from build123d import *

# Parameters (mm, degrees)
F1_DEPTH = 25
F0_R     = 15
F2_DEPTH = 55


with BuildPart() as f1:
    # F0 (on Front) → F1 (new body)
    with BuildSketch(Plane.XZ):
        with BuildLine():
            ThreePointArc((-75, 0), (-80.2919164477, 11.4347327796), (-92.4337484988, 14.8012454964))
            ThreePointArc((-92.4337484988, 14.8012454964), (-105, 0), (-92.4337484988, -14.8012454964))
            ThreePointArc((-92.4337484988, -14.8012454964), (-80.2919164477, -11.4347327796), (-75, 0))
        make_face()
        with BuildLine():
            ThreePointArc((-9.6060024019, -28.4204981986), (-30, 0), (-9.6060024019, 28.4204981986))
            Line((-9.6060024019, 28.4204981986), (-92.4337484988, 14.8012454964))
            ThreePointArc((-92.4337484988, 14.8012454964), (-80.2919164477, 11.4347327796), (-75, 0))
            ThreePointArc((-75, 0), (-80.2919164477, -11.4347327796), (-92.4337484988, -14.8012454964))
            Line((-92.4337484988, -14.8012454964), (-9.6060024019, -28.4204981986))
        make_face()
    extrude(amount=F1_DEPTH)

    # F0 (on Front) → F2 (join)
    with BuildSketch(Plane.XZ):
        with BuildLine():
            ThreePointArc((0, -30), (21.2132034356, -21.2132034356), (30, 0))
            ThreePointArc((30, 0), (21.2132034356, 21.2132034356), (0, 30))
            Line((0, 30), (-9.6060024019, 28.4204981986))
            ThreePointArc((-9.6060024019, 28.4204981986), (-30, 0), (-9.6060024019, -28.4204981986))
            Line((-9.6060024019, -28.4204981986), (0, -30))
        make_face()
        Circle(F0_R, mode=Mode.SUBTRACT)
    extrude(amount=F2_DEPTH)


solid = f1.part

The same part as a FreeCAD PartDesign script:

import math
import FreeCAD as App
import Part
import Sketcher
from FreeCAD import Vector

doc = App.newDocument("Part")
params = doc.addObject("Spreadsheet::Sheet", "Params")
for row, (alias, value) in enumerate([
    ("sketch1_radius", "15 mm"),
    ("sketch1_radius2", "30 mm"),
    ("pad1_length", "25 mm"),
    ("sketch2_diameter", "30 mm"),
    ("sketch2_radius", "30 mm"),
    ("pad2_length", "55 mm"),
], start=1):
    params.set(f"A{row}", alias)
    params.set(f"B{row}", "=" + value)
    params.setAlias(f"B{row}", alias)

body = doc.addObject("PartDesign::Body", "Body")

# Sketch on XZ plane
sketch1 = body.newObject("Sketcher::SketchObject", "Sketch")
sketch1.AttachmentSupport = (doc.getObject("XZ_Plane"), [""])
sketch1.MapMode = "FlatFace"
sketch1.addGeometry([
    Part.ArcOfCircle(Part.Circle(Vector(-90, 0, 0), Vector(0, 0, 1), 15), math.radians(99), math.radians(261)),
    Part.LineSegment(Vector(-92, -15, 0), Vector(-10, -28, 0)),
    Part.ArcOfCircle(Part.Circle(Vector(0, 0, 0), Vector(0, 0, 1), 30), math.radians(109), math.radians(251)),
    Part.LineSegment(Vector(-10, 28, 0), Vector(-92, 15, 0)),
], False)
sketch1.addConstraint([
    Sketcher.Constraint("Tangent", 0, 2, 1, 1),
    Sketcher.Constraint("Coincident", 1, 2, 2, 2),
    Sketcher.Constraint("Coincident", 2, 1, 3, 1),
    Sketcher.Constraint("Tangent", 3, 2, 0, 1),
    Sketcher.Constraint("Coincident", 2, 3, -1, 1),
    Sketcher.Constraint("Symmetric", 0, 2, 3, 2, -1),
    Sketcher.Constraint("Radius", 0, 15.0),
    Sketcher.Constraint("Radius", 2, 30.0),
    Sketcher.Constraint("DistanceX", 0, 3, -1, 1, 90.0),
    Sketcher.Constraint("DistanceY", 1, 2, -1, 1, 28.420498),
])
sketch1.setExpression("Constraints[6]", "Params.sketch1_radius")
sketch1.setExpression("Constraints[7]", "Params.sketch1_radius2")
pad1 = body.newObject("PartDesign::Pad", "Pad")
pad1.Profile = sketch1
pad1.setExpression("Length", "Params.pad1_length")

# Sketch on XZ plane
sketch2 = body.newObject("Sketcher::SketchObject", "Sketch001")
sketch2.AttachmentSupport = (doc.getObject("XZ_Plane"), [""])
sketch2.MapMode = "FlatFace"
sketch2.addGeometry([
    Part.ArcOfCircle(Part.Circle(Vector(0, 0, 0), Vector(0, 0, 1), 30), math.radians(-90), math.radians(90)),  # 0
    Part.LineSegment(Vector(0, 30, 0), Vector(-10, 28, 0)),  # 1
    Part.ArcOfCircle(Part.Circle(Vector(0, 0, 0), Vector(0, 0, 1), 30), math.radians(109), math.radians(251)),  # 2
    Part.LineSegment(Vector(-10, -28, 0), Vector(0, -30, 0)),  # 3
    Part.Circle(Vector(0, 0, 0), Vector(0, 0, 1), 15),  # 4
], False)
sketch2.addConstraint([
    Sketcher.Constraint("Coincident", 0, 2, 1, 1),
    Sketcher.Constraint("Coincident", 1, 2, 2, 1),
    Sketcher.Constraint("Coincident", 2, 2, 3, 1),
    Sketcher.Constraint("Coincident", 3, 2, 0, 1),
    Sketcher.Constraint("Coincident", 0, 3, -1, 1),
    Sketcher.Constraint("Coincident", 2, 3, -1, 1),
    Sketcher.Constraint("Coincident", 4, 3, -1, 1),
    Sketcher.Constraint("Equal", 0, 2),
    Sketcher.Constraint("PointOnObject", 0, 2, -2),
    Sketcher.Constraint("PointOnObject", 3, 2, -2),
    Sketcher.Constraint("Vertical", 1, 2, 2, 2),
    Sketcher.Constraint("Diameter", 4, 30.0),
    Sketcher.Constraint("Radius", 0, 30.0),
    Sketcher.Constraint("DistanceY", -1, 1, 1, 2, 28.420498),
])
sketch2.setExpression("Constraints[11]", "Params.sketch2_diameter")
sketch2.setExpression("Constraints[12]", "Params.sketch2_radius")
pad2 = body.newObject("PartDesign::Pad", "Pad001")
pad2.Profile = sketch2
pad2.setExpression("Length", "Params.pad2_length")

doc.recompute()
